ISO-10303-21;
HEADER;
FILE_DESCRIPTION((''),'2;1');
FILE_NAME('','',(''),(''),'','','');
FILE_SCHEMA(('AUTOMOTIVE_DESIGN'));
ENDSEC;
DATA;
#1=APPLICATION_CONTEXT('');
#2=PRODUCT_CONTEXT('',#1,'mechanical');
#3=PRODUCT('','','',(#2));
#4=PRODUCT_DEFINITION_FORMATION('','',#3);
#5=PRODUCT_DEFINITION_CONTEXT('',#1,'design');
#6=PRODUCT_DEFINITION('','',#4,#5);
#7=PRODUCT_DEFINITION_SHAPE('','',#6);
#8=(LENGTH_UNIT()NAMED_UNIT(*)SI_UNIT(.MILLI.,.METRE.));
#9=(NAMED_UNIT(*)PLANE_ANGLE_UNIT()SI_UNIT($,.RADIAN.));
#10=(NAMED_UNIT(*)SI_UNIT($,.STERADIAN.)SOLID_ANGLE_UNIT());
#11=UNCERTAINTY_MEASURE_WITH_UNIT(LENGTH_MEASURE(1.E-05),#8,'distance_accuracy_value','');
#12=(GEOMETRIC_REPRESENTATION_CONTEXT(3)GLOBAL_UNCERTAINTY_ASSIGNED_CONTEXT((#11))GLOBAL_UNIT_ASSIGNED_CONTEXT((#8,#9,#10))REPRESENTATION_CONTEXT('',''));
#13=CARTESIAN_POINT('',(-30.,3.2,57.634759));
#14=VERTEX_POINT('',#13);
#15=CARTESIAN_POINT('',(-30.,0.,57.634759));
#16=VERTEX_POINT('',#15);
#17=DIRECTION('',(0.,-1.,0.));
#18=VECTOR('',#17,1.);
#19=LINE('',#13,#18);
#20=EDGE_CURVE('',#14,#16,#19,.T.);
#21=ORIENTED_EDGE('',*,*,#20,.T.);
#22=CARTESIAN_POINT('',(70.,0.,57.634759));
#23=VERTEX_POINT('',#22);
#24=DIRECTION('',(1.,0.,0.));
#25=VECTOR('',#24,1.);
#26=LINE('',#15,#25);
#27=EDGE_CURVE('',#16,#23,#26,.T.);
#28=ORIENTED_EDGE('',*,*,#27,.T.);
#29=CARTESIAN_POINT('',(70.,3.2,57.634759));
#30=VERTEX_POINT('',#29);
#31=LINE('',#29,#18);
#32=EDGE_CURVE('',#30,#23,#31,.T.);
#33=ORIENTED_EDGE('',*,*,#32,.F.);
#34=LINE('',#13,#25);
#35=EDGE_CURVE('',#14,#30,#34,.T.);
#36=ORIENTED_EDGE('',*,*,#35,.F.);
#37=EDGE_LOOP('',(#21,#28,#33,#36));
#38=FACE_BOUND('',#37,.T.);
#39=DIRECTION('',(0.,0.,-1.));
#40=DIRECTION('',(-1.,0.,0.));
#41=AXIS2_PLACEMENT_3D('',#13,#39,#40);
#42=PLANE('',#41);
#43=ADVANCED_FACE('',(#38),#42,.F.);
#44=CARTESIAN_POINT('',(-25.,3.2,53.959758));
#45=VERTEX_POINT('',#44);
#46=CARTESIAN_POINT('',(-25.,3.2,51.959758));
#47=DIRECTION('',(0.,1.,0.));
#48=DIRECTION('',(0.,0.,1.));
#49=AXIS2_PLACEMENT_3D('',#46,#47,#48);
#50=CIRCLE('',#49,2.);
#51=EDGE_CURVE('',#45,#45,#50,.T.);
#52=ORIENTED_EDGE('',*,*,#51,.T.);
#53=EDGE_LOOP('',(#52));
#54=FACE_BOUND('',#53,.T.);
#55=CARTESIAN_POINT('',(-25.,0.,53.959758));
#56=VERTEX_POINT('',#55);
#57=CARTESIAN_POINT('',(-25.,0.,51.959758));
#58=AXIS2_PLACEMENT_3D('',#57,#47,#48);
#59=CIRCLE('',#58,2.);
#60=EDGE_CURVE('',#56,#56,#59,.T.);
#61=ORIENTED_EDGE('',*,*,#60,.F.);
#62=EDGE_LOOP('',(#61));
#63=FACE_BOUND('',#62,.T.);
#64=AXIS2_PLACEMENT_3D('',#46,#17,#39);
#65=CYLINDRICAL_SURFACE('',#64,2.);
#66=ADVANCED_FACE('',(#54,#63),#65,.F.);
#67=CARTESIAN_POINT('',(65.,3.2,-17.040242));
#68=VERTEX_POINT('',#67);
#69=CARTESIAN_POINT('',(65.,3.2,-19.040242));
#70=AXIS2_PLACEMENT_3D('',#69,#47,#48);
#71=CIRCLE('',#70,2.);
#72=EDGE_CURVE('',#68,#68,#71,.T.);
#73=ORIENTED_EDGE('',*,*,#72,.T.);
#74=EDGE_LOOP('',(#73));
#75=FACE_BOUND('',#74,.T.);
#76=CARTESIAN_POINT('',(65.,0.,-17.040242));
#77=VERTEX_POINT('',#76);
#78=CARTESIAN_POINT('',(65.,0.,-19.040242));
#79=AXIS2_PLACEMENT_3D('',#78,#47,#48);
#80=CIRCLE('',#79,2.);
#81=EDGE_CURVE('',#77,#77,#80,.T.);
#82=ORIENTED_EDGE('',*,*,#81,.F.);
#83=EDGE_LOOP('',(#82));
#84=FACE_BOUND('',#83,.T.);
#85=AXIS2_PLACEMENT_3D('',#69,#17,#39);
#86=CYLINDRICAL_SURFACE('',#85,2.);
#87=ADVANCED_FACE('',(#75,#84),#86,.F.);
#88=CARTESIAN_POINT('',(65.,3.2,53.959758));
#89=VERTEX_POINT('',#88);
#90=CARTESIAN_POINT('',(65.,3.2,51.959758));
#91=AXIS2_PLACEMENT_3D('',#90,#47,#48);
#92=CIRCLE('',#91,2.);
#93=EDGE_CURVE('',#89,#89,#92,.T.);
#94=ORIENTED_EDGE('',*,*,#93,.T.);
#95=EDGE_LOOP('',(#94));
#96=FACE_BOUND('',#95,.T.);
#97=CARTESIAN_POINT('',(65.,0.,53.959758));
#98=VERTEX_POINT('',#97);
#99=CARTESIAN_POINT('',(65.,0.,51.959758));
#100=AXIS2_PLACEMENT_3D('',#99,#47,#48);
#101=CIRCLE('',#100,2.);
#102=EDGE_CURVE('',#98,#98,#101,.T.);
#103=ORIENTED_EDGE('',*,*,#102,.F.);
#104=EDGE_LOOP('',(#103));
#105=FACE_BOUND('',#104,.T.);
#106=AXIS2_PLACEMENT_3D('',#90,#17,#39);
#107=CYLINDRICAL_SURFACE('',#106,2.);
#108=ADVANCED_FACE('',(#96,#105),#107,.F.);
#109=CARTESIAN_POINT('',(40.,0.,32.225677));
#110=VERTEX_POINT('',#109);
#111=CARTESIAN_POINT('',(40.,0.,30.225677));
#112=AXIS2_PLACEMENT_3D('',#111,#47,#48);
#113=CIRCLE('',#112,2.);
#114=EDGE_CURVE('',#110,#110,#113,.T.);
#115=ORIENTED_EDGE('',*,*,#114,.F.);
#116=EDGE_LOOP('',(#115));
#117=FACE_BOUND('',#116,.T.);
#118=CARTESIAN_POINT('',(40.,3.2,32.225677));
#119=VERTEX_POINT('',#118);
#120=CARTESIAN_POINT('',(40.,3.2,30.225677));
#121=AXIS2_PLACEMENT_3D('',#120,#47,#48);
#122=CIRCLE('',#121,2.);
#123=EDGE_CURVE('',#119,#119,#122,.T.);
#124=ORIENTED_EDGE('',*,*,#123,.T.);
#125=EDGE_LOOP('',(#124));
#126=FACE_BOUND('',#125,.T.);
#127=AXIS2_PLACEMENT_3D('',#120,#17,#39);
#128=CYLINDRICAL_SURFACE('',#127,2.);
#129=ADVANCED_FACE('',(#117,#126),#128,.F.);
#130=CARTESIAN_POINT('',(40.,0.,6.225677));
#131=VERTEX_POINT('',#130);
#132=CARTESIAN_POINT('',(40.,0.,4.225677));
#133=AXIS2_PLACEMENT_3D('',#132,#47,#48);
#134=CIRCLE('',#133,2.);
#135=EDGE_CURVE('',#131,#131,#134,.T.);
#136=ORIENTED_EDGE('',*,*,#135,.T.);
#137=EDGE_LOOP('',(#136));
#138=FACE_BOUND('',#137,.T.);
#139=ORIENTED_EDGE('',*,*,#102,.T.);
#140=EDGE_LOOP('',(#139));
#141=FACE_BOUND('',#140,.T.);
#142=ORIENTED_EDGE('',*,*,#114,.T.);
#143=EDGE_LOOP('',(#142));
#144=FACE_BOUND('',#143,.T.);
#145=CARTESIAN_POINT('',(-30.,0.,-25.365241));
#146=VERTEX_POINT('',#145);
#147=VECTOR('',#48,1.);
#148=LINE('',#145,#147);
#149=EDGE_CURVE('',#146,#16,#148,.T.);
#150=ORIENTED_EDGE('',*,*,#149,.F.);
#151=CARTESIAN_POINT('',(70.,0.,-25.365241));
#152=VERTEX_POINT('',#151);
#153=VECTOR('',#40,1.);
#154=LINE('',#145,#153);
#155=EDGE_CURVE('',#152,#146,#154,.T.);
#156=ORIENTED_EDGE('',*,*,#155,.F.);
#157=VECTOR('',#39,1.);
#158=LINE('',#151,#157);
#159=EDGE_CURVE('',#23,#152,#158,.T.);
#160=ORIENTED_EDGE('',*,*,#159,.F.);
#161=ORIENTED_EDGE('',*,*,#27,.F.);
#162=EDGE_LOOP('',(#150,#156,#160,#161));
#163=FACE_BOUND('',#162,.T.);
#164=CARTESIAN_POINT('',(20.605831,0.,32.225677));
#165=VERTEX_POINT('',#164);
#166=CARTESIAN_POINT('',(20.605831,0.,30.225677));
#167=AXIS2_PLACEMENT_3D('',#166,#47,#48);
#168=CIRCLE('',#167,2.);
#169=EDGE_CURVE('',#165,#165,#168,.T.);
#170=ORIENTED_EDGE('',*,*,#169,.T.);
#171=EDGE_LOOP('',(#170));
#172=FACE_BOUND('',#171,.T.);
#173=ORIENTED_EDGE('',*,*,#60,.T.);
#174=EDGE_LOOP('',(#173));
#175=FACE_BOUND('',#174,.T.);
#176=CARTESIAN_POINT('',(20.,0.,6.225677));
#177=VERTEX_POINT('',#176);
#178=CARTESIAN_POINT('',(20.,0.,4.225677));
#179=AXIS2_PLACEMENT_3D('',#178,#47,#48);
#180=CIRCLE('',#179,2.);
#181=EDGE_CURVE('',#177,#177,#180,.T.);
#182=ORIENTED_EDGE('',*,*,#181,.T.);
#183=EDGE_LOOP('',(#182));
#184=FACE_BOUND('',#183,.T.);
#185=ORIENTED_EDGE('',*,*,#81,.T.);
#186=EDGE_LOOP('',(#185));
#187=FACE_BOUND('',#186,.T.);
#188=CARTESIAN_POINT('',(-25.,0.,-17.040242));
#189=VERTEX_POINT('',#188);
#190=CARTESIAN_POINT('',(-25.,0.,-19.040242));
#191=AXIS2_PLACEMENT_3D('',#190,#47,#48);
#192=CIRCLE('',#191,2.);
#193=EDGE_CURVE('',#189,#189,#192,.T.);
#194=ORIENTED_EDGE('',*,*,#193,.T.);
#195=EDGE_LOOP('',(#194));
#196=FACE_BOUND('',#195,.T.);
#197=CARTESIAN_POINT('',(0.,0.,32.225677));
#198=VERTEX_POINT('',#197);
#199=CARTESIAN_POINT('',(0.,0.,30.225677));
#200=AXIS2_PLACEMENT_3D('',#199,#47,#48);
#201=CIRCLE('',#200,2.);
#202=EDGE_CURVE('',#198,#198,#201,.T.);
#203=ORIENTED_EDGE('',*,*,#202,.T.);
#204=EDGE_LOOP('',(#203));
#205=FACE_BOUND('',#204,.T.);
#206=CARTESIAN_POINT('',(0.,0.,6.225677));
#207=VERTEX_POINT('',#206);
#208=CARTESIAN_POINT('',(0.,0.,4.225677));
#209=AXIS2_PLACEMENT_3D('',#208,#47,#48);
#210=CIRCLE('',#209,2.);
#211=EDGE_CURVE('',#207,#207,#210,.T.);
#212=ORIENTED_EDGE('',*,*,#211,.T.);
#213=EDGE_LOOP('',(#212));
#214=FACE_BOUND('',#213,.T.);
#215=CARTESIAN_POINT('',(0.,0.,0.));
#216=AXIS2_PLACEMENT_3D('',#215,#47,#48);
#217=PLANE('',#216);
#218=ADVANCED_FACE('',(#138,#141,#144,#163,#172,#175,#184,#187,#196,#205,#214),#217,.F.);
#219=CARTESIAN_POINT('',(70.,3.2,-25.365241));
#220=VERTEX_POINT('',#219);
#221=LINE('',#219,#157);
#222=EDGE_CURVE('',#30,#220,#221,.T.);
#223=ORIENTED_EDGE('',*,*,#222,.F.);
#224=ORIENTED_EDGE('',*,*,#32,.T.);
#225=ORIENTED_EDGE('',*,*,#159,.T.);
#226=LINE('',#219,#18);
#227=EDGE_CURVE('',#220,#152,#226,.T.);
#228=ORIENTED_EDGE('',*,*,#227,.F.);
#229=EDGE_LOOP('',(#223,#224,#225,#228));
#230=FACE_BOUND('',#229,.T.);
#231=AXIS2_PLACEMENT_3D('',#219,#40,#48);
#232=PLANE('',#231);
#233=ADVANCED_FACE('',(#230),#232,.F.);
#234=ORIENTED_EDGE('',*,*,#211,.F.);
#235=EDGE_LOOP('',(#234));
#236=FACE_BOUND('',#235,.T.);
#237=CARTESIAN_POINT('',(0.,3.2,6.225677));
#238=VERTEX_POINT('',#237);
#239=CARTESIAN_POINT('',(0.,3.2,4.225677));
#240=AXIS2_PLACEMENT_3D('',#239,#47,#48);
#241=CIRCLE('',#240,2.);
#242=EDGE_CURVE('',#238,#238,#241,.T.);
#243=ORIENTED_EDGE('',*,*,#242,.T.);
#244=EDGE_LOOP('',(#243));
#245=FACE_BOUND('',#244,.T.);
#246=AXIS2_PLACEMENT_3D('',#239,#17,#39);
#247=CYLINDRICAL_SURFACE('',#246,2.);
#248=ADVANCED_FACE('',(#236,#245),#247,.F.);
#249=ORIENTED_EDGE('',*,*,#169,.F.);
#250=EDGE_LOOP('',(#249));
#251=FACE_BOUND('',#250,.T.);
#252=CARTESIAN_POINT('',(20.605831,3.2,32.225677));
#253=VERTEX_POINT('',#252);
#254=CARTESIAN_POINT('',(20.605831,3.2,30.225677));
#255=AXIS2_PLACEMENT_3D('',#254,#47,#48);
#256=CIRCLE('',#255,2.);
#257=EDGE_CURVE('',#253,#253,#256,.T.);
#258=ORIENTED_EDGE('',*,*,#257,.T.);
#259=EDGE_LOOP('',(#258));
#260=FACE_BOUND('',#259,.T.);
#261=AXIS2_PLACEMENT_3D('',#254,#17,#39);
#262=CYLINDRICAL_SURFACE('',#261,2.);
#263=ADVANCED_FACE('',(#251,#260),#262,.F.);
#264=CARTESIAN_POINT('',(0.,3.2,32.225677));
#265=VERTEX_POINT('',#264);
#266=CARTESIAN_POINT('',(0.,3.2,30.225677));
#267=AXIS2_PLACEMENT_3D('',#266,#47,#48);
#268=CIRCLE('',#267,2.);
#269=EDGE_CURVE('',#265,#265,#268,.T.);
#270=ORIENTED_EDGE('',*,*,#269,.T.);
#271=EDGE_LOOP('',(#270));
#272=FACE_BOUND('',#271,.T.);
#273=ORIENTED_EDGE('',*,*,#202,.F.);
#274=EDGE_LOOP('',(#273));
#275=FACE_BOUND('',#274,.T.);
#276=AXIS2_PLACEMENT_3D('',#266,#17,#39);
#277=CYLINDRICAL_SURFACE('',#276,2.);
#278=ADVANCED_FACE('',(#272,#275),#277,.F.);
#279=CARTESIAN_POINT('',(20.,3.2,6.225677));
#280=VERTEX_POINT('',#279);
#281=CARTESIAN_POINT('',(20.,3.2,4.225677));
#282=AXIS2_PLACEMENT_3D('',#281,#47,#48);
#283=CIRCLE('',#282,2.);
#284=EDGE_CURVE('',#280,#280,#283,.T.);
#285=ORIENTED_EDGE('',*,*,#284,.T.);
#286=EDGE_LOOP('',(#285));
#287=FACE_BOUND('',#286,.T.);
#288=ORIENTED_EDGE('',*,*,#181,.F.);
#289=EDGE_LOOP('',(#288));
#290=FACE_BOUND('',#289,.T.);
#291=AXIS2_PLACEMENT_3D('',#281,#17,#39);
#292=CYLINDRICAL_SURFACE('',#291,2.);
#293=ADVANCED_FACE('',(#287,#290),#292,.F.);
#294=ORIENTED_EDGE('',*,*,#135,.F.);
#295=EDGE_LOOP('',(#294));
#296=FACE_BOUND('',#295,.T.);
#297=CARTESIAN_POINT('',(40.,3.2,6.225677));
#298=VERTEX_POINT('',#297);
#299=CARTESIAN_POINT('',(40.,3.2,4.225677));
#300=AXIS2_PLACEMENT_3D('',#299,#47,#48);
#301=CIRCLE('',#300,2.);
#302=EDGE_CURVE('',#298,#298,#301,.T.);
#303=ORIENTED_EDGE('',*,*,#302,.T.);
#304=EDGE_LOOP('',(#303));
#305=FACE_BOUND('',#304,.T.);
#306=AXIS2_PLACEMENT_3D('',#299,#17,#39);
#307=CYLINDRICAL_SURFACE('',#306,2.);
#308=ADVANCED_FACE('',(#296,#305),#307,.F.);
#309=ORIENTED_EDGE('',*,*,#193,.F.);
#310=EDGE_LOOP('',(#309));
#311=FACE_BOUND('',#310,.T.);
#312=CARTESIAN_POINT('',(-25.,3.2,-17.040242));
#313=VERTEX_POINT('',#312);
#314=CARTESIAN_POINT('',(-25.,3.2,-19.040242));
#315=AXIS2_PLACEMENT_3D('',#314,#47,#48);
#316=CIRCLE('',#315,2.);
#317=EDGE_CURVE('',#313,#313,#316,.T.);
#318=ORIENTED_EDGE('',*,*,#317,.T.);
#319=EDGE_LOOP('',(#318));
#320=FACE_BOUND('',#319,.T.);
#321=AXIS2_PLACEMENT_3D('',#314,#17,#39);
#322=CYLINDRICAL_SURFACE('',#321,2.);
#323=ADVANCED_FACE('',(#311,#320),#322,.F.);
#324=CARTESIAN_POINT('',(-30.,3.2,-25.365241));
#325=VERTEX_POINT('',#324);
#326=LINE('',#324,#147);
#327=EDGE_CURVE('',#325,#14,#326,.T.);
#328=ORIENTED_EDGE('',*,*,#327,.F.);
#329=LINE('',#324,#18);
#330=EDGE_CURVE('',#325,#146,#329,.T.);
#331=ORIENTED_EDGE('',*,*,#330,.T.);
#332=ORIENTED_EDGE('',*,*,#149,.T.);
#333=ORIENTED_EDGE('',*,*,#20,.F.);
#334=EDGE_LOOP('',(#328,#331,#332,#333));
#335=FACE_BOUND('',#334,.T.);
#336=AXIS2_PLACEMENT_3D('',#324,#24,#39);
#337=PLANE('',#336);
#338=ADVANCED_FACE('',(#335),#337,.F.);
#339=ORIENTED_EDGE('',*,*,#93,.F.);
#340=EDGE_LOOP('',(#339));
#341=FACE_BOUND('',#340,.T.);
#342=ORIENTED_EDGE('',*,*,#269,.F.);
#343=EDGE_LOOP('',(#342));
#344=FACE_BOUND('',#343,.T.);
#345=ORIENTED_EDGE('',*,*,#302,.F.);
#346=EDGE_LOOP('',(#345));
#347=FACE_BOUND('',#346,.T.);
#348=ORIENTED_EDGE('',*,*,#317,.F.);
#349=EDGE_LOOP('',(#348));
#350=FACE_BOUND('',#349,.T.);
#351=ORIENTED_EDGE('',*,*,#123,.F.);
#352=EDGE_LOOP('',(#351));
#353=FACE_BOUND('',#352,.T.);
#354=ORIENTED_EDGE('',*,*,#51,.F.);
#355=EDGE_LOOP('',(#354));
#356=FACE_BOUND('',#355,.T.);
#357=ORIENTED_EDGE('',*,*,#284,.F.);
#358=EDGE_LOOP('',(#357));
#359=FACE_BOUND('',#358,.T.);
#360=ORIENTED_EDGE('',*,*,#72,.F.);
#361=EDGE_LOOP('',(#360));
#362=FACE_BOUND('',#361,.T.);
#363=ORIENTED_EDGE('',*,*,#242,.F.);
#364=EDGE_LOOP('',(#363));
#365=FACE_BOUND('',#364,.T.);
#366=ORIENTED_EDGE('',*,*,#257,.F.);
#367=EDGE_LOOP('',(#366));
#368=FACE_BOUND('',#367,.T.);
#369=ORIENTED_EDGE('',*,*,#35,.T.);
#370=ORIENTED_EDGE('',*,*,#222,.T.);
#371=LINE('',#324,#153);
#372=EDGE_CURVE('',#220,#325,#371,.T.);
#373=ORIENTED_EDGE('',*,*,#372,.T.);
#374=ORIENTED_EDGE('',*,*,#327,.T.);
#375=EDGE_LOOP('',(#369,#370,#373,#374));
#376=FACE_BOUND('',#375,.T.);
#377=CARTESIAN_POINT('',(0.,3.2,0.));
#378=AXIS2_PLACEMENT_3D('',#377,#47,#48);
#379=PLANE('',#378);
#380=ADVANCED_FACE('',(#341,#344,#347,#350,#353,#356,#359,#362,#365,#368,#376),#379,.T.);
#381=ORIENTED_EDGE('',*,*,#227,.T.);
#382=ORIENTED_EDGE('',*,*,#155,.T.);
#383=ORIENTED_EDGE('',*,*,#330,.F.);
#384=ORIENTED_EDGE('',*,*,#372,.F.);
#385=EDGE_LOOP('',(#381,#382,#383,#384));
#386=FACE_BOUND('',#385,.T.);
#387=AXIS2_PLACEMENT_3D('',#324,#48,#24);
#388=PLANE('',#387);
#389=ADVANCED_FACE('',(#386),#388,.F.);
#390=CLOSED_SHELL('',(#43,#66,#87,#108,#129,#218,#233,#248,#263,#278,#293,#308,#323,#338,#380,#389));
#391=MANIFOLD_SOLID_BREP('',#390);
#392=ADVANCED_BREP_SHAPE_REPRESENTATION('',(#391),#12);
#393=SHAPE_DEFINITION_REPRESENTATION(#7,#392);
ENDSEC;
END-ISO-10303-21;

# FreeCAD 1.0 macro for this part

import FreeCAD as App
import Part
import Sketcher


def add_polygon(sketch, points):
    """Adds a closed chain of lines whose ends are joined by coincident constraints."""
    first, n = sketch.GeometryCount, len(points)
    for a, b in zip(points, points[1:] + points[:1]):
        sketch.addGeometry(Part.LineSegment(App.Vector(*a, 0), App.Vector(*b, 0)), False)
    for i in range(n):
        sketch.addConstraint(Sketcher.Constraint("Coincident", first + i, 2, first + (i + 1) % n, 1))

doc = App.newDocument("Part")
params = doc.addObject("Spreadsheet::Sheet", "Params")
for row, (alias, value) in enumerate([
    ("sketch1_diameter", "4 mm"),
    ("sketch1_width", "100 mm"),
    ("sketch1_height", "83 mm"),
    ("pad1_length", "3.2 mm"),
], start=1):
    params.set(f"A{row}", alias)
    params.set(f"B{row}", "=" + value)
    params.setAlias(f"B{row}", alias)

body = doc.addObject("PartDesign::Body", "Body")

sketch1 = doc.addObject("Sketcher::SketchObject", "Sketch")
body.addObject(sketch1)
sketch1.AttachmentSupport = (doc.XZ_Plane, [""])
sketch1.MapMode = "FlatFace"
add_polygon(sketch1, [(-30, -25.4), (-30, 57.6), (70, 57.6), (70, -25.4)])
sketch1.addGeometry(Part.Circle(App.Vector(-25, 52, 0), App.Vector(0, 0, 1), 2), False)
sketch1.addGeometry(Part.Circle(App.Vector(0, 30.2, 0), App.Vector(0, 0, 1), 2), False)
sketch1.addGeometry(Part.Circle(App.Vector(65, 52, 0), App.Vector(0, 0, 1), 2), False)
sketch1.addGeometry(Part.Circle(App.Vector(20.6, 30.2, 0), App.Vector(0, 0, 1), 2), False)
sketch1.addGeometry(Part.Circle(App.Vector(40, 30.2, 0), App.Vector(0, 0, 1), 2), False)
sketch1.addGeometry(Part.Circle(App.Vector(0, 4.2, 0), App.Vector(0, 0, 1), 2), False)
sketch1.addGeometry(Part.Circle(App.Vector(-25, -19, 0), App.Vector(0, 0, 1), 2), False)
sketch1.addGeometry(Part.Circle(App.Vector(20, 4.2, 0), App.Vector(0, 0, 1), 2), False)
sketch1.addGeometry(Part.Circle(App.Vector(40, 4.2, 0), App.Vector(0, 0, 1), 2), False)
sketch1.addGeometry(Part.Circle(App.Vector(65, -19, 0), App.Vector(0, 0, 1), 2), False)
sketch1.addConstraint([
    Sketcher.Constraint("Vertical", 0),
    Sketcher.Constraint("Horizontal", 1),
    Sketcher.Constraint("Vertical", 2),
    Sketcher.Constraint("Horizontal", 3),
    Sketcher.Constraint("Equal", 4, 5),
    Sketcher.Constraint("Equal", 5, 6),
    Sketcher.Constraint("Equal", 6, 7),
    Sketcher.Constraint("Equal", 7, 8),
    Sketcher.Constraint("Equal", 8, 9),
    Sketcher.Constraint("Equal", 9, 10),
    Sketcher.Constraint("Equal", 10, 11),
    Sketcher.Constraint("Equal", 11, 12),
    Sketcher.Constraint("Equal", 12, 13),
    Sketcher.Constraint("PointOnObject", 5, 3, -2),
    Sketcher.Constraint("PointOnObject", 9, 3, -2),
    Sketcher.Constraint("Horizontal", 4, 3, 6, 3),
    Sketcher.Constraint("Horizontal", 5, 3, 7, 3),
    Sketcher.Constraint("Horizontal", 7, 3, 8, 3),
    Sketcher.Constraint("Horizontal", 9, 3, 11, 3),
    Sketcher.Constraint("Horizontal", 11, 3, 12, 3),
    Sketcher.Constraint("Horizontal", 10, 3, 13, 3),
    Sketcher.Constraint("Vertical", 4, 3, 10, 3),
    Sketcher.Constraint("Vertical", 8, 3, 12, 3),
    Sketcher.Constraint("Vertical", 6, 3, 13, 3),
    Sketcher.Constraint("Diameter", 4, 4.0),
    Sketcher.Constraint("DistanceX", 1, 1, 1, 2, 100.0),
    Sketcher.Constraint("DistanceY", 0, 1, 0, 2, 83.0),
    Sketcher.Constraint("DistanceX", 4, 3, -1, 1, 25.0),
    Sketcher.Constraint("DistanceX", -1, 1, 6, 3, 65.0),
    Sketcher.Constraint("DistanceX", -1, 1, 8, 3, 40.0),
    Sketcher.Constraint("DistanceX", -1, 1, 11, 3, 20.0),
    Sketcher.Constraint("DistanceX", 0, 2, -1, 1, 30.0),
    Sketcher.Constraint("DistanceY", 9, 3, 5, 3, 26.0),
    Sketcher.Constraint("DistanceY", 10, 3, 4, 3, 71.0),
    Sketcher.Constraint("DistanceY", 4, 3, 0, 2, 5.675002),
    Sketcher.Constraint("DistanceX", -1, 1, 7, 3, 20.605831),
    Sketcher.Constraint("DistanceY", -1, 1, 0, 2, 57.634759),
    Sketcher.Constraint("DistanceY", 5, 3, 4, 3, 21.734081),
])
sketch1.setExpression("Constraints[28]", "Params.sketch1_diameter")
sketch1.setExpression("Constraints[29]", "Params.sketch1_width")
sketch1.setExpression("Constraints[30]", "Params.sketch1_height")
pad1 = doc.addObject("PartDesign::Pad", "Pad")
body.addObject(pad1)
pad1.Profile = sketch1
pad1.setExpression("Length", "Params.pad1_length")
pad1.Reversed = True

doc.recompute()
